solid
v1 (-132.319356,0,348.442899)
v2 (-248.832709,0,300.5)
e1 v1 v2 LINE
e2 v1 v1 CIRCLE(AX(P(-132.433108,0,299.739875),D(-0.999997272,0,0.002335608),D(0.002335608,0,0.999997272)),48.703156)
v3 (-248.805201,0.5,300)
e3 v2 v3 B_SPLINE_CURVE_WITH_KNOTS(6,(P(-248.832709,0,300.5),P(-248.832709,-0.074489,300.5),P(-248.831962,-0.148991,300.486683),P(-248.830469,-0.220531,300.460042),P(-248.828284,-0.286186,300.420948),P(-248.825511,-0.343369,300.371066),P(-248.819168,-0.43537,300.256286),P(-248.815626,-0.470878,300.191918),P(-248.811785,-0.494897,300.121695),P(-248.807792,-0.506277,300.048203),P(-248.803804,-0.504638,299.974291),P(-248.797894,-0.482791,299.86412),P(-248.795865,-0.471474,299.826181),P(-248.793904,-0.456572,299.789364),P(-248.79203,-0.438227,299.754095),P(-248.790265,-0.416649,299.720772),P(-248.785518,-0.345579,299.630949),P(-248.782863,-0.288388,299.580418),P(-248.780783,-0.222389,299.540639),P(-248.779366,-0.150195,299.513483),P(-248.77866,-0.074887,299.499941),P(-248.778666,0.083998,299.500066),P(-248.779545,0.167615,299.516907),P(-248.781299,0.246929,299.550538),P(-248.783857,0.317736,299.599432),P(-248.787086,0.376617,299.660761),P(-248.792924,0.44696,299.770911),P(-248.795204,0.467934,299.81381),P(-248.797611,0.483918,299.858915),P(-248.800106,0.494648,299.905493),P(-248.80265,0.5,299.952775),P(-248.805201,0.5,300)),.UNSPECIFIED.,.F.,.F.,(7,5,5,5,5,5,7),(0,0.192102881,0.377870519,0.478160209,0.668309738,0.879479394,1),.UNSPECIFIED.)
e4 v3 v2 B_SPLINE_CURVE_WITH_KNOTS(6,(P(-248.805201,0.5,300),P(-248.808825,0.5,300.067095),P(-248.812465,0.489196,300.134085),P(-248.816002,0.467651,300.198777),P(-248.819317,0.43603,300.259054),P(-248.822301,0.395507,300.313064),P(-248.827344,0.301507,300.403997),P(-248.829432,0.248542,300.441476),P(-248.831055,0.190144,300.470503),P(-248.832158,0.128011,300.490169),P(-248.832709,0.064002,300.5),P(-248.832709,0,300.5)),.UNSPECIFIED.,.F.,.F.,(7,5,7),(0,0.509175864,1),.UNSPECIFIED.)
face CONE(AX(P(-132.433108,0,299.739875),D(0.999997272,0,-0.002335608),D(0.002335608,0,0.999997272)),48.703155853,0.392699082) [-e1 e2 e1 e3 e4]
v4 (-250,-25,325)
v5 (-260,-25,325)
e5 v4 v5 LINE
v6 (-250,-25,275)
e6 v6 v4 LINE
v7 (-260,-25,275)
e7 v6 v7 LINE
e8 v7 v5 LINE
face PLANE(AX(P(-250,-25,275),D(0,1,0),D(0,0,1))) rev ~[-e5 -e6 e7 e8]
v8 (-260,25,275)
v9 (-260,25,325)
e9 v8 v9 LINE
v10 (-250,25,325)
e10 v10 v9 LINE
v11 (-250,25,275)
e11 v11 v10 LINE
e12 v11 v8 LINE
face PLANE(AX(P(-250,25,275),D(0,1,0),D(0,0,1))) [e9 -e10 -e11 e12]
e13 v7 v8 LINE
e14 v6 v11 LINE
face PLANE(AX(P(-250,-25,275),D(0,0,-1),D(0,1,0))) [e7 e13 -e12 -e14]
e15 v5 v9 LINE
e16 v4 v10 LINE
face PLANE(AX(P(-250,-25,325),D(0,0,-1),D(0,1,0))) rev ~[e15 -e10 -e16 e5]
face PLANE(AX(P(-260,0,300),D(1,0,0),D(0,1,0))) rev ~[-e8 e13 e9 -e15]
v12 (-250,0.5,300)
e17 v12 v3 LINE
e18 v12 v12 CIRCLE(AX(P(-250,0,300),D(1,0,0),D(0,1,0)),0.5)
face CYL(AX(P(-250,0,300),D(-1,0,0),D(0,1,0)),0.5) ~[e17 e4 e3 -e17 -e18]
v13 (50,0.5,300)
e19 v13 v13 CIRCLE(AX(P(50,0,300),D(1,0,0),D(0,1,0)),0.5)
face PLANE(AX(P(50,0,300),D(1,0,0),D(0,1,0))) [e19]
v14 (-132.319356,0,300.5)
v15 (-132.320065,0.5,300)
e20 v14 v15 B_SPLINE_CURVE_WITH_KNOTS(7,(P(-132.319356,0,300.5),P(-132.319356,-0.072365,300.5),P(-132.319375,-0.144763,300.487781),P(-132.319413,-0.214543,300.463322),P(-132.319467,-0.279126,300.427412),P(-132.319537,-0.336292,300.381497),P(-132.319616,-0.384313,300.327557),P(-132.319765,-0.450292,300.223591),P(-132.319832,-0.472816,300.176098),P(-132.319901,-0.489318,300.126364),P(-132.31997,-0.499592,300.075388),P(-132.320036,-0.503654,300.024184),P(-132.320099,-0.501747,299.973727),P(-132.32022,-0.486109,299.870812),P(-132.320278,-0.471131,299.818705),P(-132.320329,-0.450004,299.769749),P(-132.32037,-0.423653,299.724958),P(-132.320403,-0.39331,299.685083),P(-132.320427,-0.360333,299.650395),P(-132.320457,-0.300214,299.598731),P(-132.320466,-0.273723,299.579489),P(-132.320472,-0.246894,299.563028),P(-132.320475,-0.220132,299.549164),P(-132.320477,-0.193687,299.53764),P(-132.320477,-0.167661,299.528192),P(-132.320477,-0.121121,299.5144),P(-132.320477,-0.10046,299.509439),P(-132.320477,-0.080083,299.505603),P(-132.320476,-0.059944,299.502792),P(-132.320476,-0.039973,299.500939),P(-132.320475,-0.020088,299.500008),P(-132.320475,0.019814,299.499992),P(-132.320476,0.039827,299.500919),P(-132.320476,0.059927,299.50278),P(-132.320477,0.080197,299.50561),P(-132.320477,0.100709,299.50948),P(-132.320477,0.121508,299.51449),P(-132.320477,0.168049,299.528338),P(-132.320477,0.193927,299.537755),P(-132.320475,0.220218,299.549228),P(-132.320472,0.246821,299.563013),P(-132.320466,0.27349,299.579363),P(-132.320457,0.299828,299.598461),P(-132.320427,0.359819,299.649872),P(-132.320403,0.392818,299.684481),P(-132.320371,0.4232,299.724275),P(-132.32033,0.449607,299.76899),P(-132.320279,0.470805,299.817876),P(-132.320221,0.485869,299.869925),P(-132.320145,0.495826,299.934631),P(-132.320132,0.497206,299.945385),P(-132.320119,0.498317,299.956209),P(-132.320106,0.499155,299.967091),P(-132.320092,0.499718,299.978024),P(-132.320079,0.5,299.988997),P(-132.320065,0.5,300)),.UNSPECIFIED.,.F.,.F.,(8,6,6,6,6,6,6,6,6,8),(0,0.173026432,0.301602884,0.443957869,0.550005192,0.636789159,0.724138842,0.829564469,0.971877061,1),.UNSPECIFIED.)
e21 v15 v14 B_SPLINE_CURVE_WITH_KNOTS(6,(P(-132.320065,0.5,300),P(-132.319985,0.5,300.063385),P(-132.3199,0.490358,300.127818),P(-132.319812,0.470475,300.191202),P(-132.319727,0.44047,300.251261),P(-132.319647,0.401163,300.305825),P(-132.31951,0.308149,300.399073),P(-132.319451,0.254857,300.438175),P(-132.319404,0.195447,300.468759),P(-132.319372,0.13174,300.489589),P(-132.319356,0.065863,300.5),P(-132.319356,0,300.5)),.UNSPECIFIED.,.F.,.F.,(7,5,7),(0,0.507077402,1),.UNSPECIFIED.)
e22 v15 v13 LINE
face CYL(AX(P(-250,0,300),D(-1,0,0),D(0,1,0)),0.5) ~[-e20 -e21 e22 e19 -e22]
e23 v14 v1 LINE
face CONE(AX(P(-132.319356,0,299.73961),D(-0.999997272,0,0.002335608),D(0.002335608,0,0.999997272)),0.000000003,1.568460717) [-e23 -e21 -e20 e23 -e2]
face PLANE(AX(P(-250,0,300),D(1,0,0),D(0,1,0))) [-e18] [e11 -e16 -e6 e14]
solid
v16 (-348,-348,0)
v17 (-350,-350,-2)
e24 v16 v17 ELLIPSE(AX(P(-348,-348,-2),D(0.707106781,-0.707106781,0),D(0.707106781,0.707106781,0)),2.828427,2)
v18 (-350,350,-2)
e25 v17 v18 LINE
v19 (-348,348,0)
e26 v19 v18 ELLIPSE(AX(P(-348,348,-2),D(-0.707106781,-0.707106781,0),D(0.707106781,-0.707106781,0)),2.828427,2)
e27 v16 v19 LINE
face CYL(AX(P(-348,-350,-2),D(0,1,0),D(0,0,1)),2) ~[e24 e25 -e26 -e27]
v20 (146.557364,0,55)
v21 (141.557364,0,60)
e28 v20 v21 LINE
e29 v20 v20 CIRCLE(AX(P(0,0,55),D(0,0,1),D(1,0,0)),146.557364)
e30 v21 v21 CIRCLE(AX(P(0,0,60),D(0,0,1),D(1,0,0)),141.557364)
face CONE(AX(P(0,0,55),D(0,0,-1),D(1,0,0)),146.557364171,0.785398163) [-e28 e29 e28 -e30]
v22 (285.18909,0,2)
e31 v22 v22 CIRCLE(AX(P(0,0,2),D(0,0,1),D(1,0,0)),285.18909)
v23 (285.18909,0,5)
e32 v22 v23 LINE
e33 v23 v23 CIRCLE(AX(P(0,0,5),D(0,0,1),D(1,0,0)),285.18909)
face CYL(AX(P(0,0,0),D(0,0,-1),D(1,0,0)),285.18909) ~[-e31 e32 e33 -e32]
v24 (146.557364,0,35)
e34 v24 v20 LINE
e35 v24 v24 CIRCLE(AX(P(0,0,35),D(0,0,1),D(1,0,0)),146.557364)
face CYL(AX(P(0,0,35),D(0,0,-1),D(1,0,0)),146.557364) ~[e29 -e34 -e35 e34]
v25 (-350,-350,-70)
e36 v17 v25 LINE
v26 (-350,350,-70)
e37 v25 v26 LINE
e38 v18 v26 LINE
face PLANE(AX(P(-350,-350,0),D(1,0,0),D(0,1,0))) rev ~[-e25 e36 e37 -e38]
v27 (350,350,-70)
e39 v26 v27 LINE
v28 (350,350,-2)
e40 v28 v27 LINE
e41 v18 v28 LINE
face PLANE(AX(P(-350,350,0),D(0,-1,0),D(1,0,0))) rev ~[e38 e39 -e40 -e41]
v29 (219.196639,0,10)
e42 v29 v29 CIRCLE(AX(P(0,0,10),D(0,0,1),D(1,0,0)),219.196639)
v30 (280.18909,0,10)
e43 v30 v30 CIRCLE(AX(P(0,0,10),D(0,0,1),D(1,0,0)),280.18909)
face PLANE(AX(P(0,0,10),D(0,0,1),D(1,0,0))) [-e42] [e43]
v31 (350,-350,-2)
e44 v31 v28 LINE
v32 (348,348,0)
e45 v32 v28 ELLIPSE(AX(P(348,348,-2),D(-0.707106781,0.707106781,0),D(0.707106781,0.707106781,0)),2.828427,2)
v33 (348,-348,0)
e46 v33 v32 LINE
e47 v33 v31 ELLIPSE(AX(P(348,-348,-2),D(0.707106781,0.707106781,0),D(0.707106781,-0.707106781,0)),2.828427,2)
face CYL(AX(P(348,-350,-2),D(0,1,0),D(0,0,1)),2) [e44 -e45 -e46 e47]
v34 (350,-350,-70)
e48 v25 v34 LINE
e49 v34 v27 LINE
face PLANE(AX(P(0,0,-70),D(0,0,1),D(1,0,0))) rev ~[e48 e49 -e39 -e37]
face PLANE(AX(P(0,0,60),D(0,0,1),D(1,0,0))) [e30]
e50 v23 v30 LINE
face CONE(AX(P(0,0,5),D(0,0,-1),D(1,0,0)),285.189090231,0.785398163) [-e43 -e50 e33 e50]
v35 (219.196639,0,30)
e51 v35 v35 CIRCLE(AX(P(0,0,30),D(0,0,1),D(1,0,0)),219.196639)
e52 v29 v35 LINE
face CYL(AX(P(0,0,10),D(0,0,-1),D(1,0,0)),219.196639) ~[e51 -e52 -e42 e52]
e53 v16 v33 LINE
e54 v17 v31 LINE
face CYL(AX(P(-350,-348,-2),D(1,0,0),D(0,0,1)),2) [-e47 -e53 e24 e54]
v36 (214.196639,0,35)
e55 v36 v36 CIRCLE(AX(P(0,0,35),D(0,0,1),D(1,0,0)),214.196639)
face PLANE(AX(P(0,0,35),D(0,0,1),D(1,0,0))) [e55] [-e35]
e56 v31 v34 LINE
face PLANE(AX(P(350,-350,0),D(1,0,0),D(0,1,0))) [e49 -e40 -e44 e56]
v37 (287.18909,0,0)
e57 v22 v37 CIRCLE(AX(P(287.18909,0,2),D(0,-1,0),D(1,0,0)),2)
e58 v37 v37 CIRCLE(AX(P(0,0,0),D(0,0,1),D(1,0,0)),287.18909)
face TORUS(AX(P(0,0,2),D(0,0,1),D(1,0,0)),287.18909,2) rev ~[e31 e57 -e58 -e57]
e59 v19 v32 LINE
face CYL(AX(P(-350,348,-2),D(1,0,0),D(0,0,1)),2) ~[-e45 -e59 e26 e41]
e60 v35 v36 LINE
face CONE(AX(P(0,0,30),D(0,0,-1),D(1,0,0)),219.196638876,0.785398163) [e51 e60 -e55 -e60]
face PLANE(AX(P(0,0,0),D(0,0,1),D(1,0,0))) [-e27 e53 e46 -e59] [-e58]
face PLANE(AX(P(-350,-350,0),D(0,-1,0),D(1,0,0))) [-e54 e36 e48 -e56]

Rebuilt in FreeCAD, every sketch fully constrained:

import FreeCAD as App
import Part
import Sketcher


def edges_at(feature, points):
    """Names of the edges that pass closest to the given points."""
    edges = feature.Shape.Edges
    near = lambda p: min(range(len(edges)), key=lambda i: edges[i].distToShape(Part.Vertex(*p))[0])
    return sorted({f"Edge{near(p) + 1}" for p in points})


def add_polygon(sketch, points):
    """Adds a closed chain of lines whose ends are joined by coincident constraints."""
    first, n = sketch.GeometryCount, len(points)
    for a, b in zip(points, points[1:] + points[:1]):
        sketch.addGeometry(Part.LineSegment(App.Vector(*a, 0), App.Vector(*b, 0)), False)
    for i in range(n):
        sketch.addConstraint(Sketcher.Constraint("Coincident", first + i, 2, first + (i + 1) % n, 1))

doc = App.newDocument("Part")
body = doc.addObject("PartDesign::Body", "Body")

sketch1 = body.newObject("Sketcher::SketchObject", "Sketch")
sketch1.AttachmentSupport = (doc.getObject("XY_Plane"), [""])
sketch1.MapMode = "FlatFace"
add_polygon(sketch1, [(-350, 350), (-350, -350), (350, -350), (350, 350)])
sketch1.addConstraint([
    Sketcher.Constraint("Vertical", 0),
    Sketcher.Constraint("Horizontal", 1),
    Sketcher.Constraint("Vertical", 2),
    Sketcher.Constraint("Horizontal", 3),
    Sketcher.Constraint("Symmetric", 0, 2, 2, 2, -1, 1),
    Sketcher.Constraint("Equal", 3, 0),
    Sketcher.Constraint("DistanceX", 1, 1, 1, 2, 700.0),
])
pad1 = body.newObject("PartDesign::Pad", "Pad")
pad1.Profile = sketch1
pad1.Length = 70
pad1.Reversed = True

sketch2 = body.newObject("Sketcher::SketchObject", "Sketch001")
sketch2.AttachmentSupport = (doc.getObject("XY_Plane"), [""])
sketch2.MapMode = "FlatFace"
sketch2.addGeometry(Part.Circle(App.Vector(0, 0, 0), App.Vector(0, 0, 1), 285), False)
sketch2.addConstraint([
    Sketcher.Constraint("Coincident", 0, 3, -1, 1),
    Sketcher.Constraint("Diameter", 0, 570.37818),
])
pad2 = body.newObject("PartDesign::Pad", "Pad001")
pad2.Profile = sketch2
pad2.Length = 10

sketch3 = body.newObject("Sketcher::SketchObject", "Sketch002")
sketch3.AttachmentSupport = (doc.getObject("XY_Plane"), [""])
sketch3.MapMode = "FlatFace"
sketch3.AttachmentOffset = App.Placement(App.Vector(0, 0, 10), App.Rotation())
sketch3.addGeometry(Part.Circle(App.Vector(0, 0, 0), App.Vector(0, 0, 1), 219), False)
sketch3.addConstraint([
    Sketcher.Constraint("Coincident", 0, 3, -1, 1),
    Sketcher.Constraint("Diameter", 0, 438.393278),
])
pad3 = body.newObject("PartDesign::Pad", "Pad002")
pad3.Profile = sketch3
pad3.Length = 25

sketch4 = body.newObject("Sketcher::SketchObject", "Sketch003")
sketch4.AttachmentSupport = (doc.getObject("XY_Plane"), [""])
sketch4.MapMode = "FlatFace"
sketch4.AttachmentOffset = App.Placement(App.Vector(0, 0, 35), App.Rotation())
sketch4.addGeometry(Part.Circle(App.Vector(0, 0, 0), App.Vector(0, 0, 1), 147), False)
sketch4.addConstraint([
    Sketcher.Constraint("Coincident", 0, 3, -1, 1),
    Sketcher.Constraint("Diameter", 0, 293.114728),
])
pad4 = body.newObject("PartDesign::Pad", "Pad003")
pad4.Profile = sketch4
pad4.Length = 25
doc.recompute()

chamfer = body.newObject("PartDesign::Chamfer", "Chamfer")
chamfer.Base = (pad4, edges_at(pad4, [(-146.557, 0, 60), (-219.197, 0, 35), (-285.189, 0, 10)]))
chamfer.Size = 5
doc.recompute()

fillet = body.newObject("PartDesign::Fillet", "Fillet")
fillet.Base = (chamfer, edges_at(chamfer, [
    (0, -350, 0),
    (0, 350, 0),
    (350, 0, 0),
    (-350, 0, 0),
    (-285.189, 0, 0),
]))
fillet.Radius = 2
body2 = doc.addObject("PartDesign::Body", "Body001")

sketch5 = body2.newObject("Sketcher::SketchObject", "Sketch004")
sketch5.AttachmentSupport = (doc.getObject("YZ_Plane001"), [""])
sketch5.MapMode = "FlatFace"
sketch5.AttachmentOffset = App.Placement(App.Vector(0, 0, -250), App.Rotation())
add_polygon(sketch5, [(-25, 325), (-25, 275), (25, 275), (25, 325)])
sketch5.addConstraint([
    Sketcher.Constraint("Vertical", 0),
    Sketcher.Constraint("Horizontal", 1),
    Sketcher.Constraint("Vertical", 2),
    Sketcher.Constraint("Horizontal", 3),
    Sketcher.Constraint("Equal", 3, 0),
    Sketcher.Constraint("DistanceX", 1, 1, 1, 2, 50.0),
    Sketcher.Constraint("DistanceX", 0, 2, -1, 1, 25.0),
    Sketcher.Constraint("DistanceY", -1, 1, 0, 2, 275.0),
])
pad5 = body2.newObject("PartDesign::Pad", "Pad004")
pad5.Profile = sketch5
pad5.Length = 10
pad5.Reversed = True

sketch6 = body2.newObject("Sketcher::SketchObject", "Sketch005")
sketch6.AttachmentSupport = (doc.getObject("YZ_Plane001"), [""])
sketch6.MapMode = "FlatFace"
sketch6.AttachmentOffset = App.Placement(App.Vector(0, 0, -250), App.Rotation())
sketch6.addGeometry(Part.Circle(App.Vector(0, 300, 0), App.Vector(0, 0, 1), 0.5), False)
sketch6.addConstraint([
    Sketcher.Constraint("PointOnObject", 0, 3, -2),
    Sketcher.Constraint("Diameter", 0, 1.0),
    Sketcher.Constraint("DistanceY", -1, 1, 0, 3, 300.0),
])
pad6 = body2.newObject("PartDesign::Pad", "Pad005")
pad6.Profile = sketch6
pad6.Length = 300

sketch7 = body2.newObject("Sketcher::SketchObject", "Sketch006")
sketch7.AttachmentSupport = (doc.getObject("XZ_Plane001"), [""])
sketch7.MapMode = "FlatFace"
add_polygon(sketch7, [(-132, 348), (-250, 300), (-132, 300)])
sketch7.addGeometry(Part.LineSegment(App.Vector(-132, 300, 0), App.Vector(-250, 300, 0)), True)
sketch7.addConstraint([
    Sketcher.Constraint("Vertical", 2),
    Sketcher.Constraint("Coincident", 3, 1, 1, 2),
    Sketcher.Constraint("Coincident", 3, 2, 0, 2),
    Sketcher.Constraint("DistanceY", 2, 1, 2, 2, 48.703289),
    Sketcher.Constraint("DistanceY", -1, 1, 2, 2, 348.442899),
    Sketcher.Constraint("Distance", 0, 127.267479),
    Sketcher.Constraint("Distance", 1, 117.693571),
    Sketcher.Constraint("DistanceX", 0, 2, -1, 1, 250.012606),
])
revolution = body2.newObject("PartDesign::Revolution", "Revolution")
revolution.Profile = sketch7
revolution.ReferenceAxis = (sketch7, ["Axis0"])
revolution.Angle = 360

doc.recompute()
